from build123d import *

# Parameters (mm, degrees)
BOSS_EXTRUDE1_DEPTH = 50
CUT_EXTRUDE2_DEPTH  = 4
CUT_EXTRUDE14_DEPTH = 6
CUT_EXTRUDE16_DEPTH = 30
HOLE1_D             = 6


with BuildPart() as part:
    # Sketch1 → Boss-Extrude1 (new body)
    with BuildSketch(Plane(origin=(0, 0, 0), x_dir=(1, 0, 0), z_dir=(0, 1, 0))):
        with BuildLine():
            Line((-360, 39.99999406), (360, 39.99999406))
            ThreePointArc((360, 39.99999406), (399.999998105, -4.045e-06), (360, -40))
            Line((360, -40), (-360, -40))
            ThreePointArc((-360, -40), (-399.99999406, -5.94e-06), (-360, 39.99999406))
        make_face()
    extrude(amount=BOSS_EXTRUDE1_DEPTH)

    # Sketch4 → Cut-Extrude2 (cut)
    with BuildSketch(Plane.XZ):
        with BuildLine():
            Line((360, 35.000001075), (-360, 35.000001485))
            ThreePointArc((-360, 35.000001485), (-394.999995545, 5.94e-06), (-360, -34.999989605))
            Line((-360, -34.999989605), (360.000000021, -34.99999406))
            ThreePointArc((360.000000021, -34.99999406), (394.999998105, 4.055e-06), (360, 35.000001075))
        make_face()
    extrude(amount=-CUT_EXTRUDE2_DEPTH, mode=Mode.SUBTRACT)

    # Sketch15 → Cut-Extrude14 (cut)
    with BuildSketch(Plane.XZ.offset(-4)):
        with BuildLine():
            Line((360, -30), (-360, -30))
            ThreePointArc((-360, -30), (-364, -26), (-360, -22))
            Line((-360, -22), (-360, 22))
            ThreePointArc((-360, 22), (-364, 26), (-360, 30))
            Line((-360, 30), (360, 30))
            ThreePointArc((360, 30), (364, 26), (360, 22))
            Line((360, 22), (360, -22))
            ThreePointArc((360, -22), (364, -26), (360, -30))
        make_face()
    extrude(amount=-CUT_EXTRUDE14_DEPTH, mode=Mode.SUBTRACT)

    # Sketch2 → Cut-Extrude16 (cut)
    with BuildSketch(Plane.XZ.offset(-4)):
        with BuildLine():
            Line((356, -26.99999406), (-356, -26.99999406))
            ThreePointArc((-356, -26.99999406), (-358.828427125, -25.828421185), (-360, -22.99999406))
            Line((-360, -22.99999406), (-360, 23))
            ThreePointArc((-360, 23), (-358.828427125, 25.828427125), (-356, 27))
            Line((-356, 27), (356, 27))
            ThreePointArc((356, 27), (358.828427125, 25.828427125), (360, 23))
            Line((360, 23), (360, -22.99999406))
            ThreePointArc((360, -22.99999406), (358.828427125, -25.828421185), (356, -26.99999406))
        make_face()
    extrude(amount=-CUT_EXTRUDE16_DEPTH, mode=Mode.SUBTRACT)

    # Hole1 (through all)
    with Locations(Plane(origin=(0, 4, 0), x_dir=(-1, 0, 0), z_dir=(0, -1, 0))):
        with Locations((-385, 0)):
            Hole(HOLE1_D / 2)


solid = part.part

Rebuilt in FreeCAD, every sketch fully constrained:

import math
import FreeCAD as App
import Part
import Sketcher
Q = App.Units.Quantity

doc = App.newDocument("Part")
body = doc.addObject("PartDesign::Body", "Body")

sketch1 = doc.addObject("Sketcher::SketchObject", "Sketch")
body.addObject(sketch1)
sketch1.AttachmentSupport = (doc.XZ_Plane, [""])
sketch1.MapMode = "FlatFace"
sketch1.addGeometry([
    Part.LineSegment(App.Vector(360, -39.999994, 0), App.Vector(-360, -39.999994, 0)),
    Part.ArcOfCircle(Part.Circle(App.Vector(-359.999997, 0.000003, 0), App.Vector(0, 0, 1), 39.999997), math.radians(90.000004), math.radians(269.999996)),
    Part.LineSegment(App.Vector(-360, 40, 0), App.Vector(360, 40, 0)),
    Part.ArcOfCircle(Part.Circle(App.Vector(360.000001, 0.000003, 0), App.Vector(0, 0, 1), 39.999997), math.radians(-90.000002), math.radians(90.000002)),
], False)
sketch1.addConstraint([
    Sketcher.Constraint("Tangent", 0, 2, 1, 2),
    Sketcher.Constraint("Tangent", 1, 1, 2, 1),
    Sketcher.Constraint("Tangent", 2, 2, 3, 2),
    Sketcher.Constraint("Tangent", 3, 1, 0, 1),
    Sketcher.Constraint("Horizontal", 0),
    Sketcher.Constraint("Horizontal", 2),
    Sketcher.Constraint("Symmetric", 1, 3, 3, 3, -1, 1),
    Sketcher.Constraint("DistanceX", 0, 2, 0, 1, Q("720 mm")),
    Sketcher.Constraint("DistanceY", -1, 1, 1, 1, Q("40 mm")),
])
pad1 = doc.addObject("PartDesign::Pad", "Pad")
body.addObject(pad1)
pad1.Profile = sketch1
pad1.Length = 50
pad1.Reversed = True

sketch2 = doc.addObject("Sketcher::SketchObject", "Sketch001")
body.addObject(sketch2)
sketch2.AttachmentSupport = (doc.XZ_Plane, [""])
sketch2.MapMode = "FlatFace"
sketch2.addGeometry([
    Part.LineSegment(App.Vector(360, 35.000001, 0), App.Vector(-360, 35.000001, 0)),
    Part.ArcOfCircle(Part.Circle(App.Vector(-360, 0.000006, 0), App.Vector(0, 0, 1), 34.999996), math.radians(90), math.radians(270)),
    Part.LineSegment(App.Vector(-360, -34.99999, 0), App.Vector(360, -34.999994, 0)),
    Part.ArcOfCircle(Part.Circle(App.Vector(360.000001, 0.000004, 0), App.Vector(0, 0, 1), 34.999998), math.radians(-90.000001), math.radians(90.000001)),
], False)
sketch2.addConstraint([
    Sketcher.Constraint("Tangent", 0, 2, 1, 1),
    Sketcher.Constraint("Tangent", 1, 2, 2, 1),
    Sketcher.Constraint("Tangent", 2, 2, 3, 1),
    Sketcher.Constraint("Tangent", 3, 2, 0, 1),
    Sketcher.Constraint("Horizontal", 0),
    Sketcher.Constraint("Symmetric", 1, 3, 3, 3, -1, 1),
    Sketcher.Constraint("Vertical", 3, 3, 2, 2),
    Sketcher.Constraint("DistanceX", 0, 2, 0, 1, Q("720 mm")),
    Sketcher.Constraint("DistanceY", -1, 1, 0, 2, Q("35.000001 mm")),
])
pocket1 = doc.addObject("PartDesign::Pocket", "Pocket")
body.addObject(pocket1)
pocket1.Profile = sketch2
pocket1.Length = 4

sketch3 = doc.addObject("Sketcher::SketchObject", "Sketch002")
body.addObject(sketch3)
sketch3.AttachmentSupport = (doc.XZ_Plane, [""])
sketch3.MapMode = "FlatFace"
sketch3.AttachmentOffset = App.Placement(App.Vector(0, 0, -4), App.Rotation())
sketch3.addGeometry([
    Part.LineSegment(App.Vector(-360, -30, 0), App.Vector(360, -30, 0)),
    Part.ArcOfCircle(Part.Circle(App.Vector(360, -26, 0), App.Vector(0, 0, 1), 4), math.radians(-90), math.radians(90)),
    Part.LineSegment(App.Vector(360, -22, 0), App.Vector(360, 22, 0)),
    Part.ArcOfCircle(Part.Circle(App.Vector(360, 26, 0), App.Vector(0, 0, 1), 4), math.radians(-90), math.radians(90)),
    Part.LineSegment(App.Vector(360, 30, 0), App.Vector(-360, 30, 0)),
    Part.ArcOfCircle(Part.Circle(App.Vector(-360, 26, 0), App.Vector(0, 0, 1), 4), math.radians(90), math.radians(270)),
    Part.LineSegment(App.Vector(-360, 22, 0), App.Vector(-360, -22, 0)),
    Part.ArcOfCircle(Part.Circle(App.Vector(-360, -26, 0), App.Vector(0, 0, 1), 4), math.radians(90), math.radians(270)),
], False)
sketch3.addConstraint([
    Sketcher.Constraint("Tangent", 0, 2, 1, 1),
    Sketcher.Constraint("Coincident", 1, 2, 2, 1),
    Sketcher.Constraint("Coincident", 2, 2, 3, 1),
    Sketcher.Constraint("Tangent", 3, 2, 4, 1),
    Sketcher.Constraint("Tangent", 4, 2, 5, 1),
    Sketcher.Constraint("Coincident", 5, 2, 6, 1),
    Sketcher.Constraint("Coincident", 6, 2, 7, 1),
    Sketcher.Constraint("Tangent", 7, 2, 0, 1),
    Sketcher.Constraint("Horizontal", 0),
    Sketcher.Constraint("Vertical", 2),
    Sketcher.Constraint("Horizontal", 4),
    Sketcher.Constraint("Vertical", 6),
    Sketcher.Constraint("Equal", 1, 3),
    Sketcher.Constraint("Equal", 3, 5),
    Sketcher.Constraint("Equal", 5, 7),
    Sketcher.Constraint("Symmetric", 1, 3, 5, 3, -1, 1),
    Sketcher.Constraint("Vertical", 1, 3, 3, 3),
    Sketcher.Constraint("Vertical", 5, 3, 7, 3),
    Sketcher.Constraint("Vertical", 0, 2, 1, 2),
    Sketcher.Constraint("Vertical", 4, 2, 5, 2),
    Sketcher.Constraint("Radius", 1, Q("4 mm")),
    Sketcher.Constraint("DistanceX", 0, 1, 0, 2, Q("720 mm")),
    Sketcher.Constraint("DistanceY", 2, 1, 2, 2, Q("44 mm")),
])
pocket2 = doc.addObject("PartDesign::Pocket", "Pocket001")
body.addObject(pocket2)
pocket2.Profile = sketch3
pocket2.Length = 6

sketch4 = doc.addObject("Sketcher::SketchObject", "Sketch003")
body.addObject(sketch4)
sketch4.AttachmentSupport = (doc.XZ_Plane, [""])
sketch4.MapMode = "FlatFace"
sketch4.AttachmentOffset = App.Placement(App.Vector(0, 0, -4), App.Rotation())
sketch4.addGeometry([
    Part.LineSegment(App.Vector(-356, -26.999994, 0), App.Vector(356, -26.999994, 0)),
    Part.ArcOfCircle(Part.Circle(App.Vector(356, -22.999994, 0), App.Vector(0, 0, 1), 4), math.radians(-90), math.radians(0)),
    Part.LineSegment(App.Vector(360, -22.999994, 0), App.Vector(360, 23, 0)),
    Part.ArcOfCircle(Part.Circle(App.Vector(356, 23, 0), App.Vector(0, 0, 1), 4), math.radians(0), math.radians(90)),
    Part.LineSegment(App.Vector(356, 27, 0), App.Vector(-356, 27, 0)),
    Part.ArcOfCircle(Part.Circle(App.Vector(-356, 23, 0), App.Vector(0, 0, 1), 4), math.radians(90), math.radians(180)),
    Part.LineSegment(App.Vector(-360, 23, 0), App.Vector(-360, -22.999994, 0)),
    Part.ArcOfCircle(Part.Circle(App.Vector(-356, -22.999994, 0), App.Vector(0, 0, 1), 4), math.radians(180), math.radians(270)),
], False)
sketch4.addConstraint([
    Sketcher.Constraint("Tangent", 0, 2, 1, 1),
    Sketcher.Constraint("Tangent", 1, 2, 2, 1),
    Sketcher.Constraint("Tangent", 2, 2, 3, 1),
    Sketcher.Constraint("Tangent", 3, 2, 4, 1),
    Sketcher.Constraint("Tangent", 4, 2, 5, 1),
    Sketcher.Constraint("Tangent", 5, 2, 6, 1),
    Sketcher.Constraint("Tangent", 6, 2, 7, 1),
    Sketcher.Constraint("Tangent", 7, 2, 0, 1),
    Sketcher.Constraint("Horizontal", 0),
    Sketcher.Constraint("Vertical", 2),
    Sketcher.Constraint("Horizontal", 4),
    Sketcher.Constraint("Vertical", 6),
    Sketcher.Constraint("Equal", 1, 3),
    Sketcher.Constraint("Equal", 3, 5),
    Sketcher.Constraint("Equal", 5, 7),
    Sketcher.Constraint("Symmetric", 1, 3, 5, 3, -1, 1),
    Sketcher.Constraint("Radius", 1, Q("4 mm")),
    Sketcher.Constraint("DistanceX", 0, 1, 0, 2, Q("712 mm")),
    Sketcher.Constraint("DistanceY", -1, 1, 3, 3, Q("23 mm")),
])
pocket3 = doc.addObject("PartDesign::Pocket", "Pocket002")
body.addObject(pocket3)
pocket3.Profile = sketch4
pocket3.Length = 30

sketch5 = doc.addObject("Sketcher::SketchObject", "Sketch004")
body.addObject(sketch5)
sketch5.AttachmentSupport = (doc.XZ_Plane, [""])
sketch5.MapMode = "FlatFace"
sketch5.AttachmentOffset = App.Placement(App.Vector(0, 0, -4), App.Rotation())
sketch5.addGeometry(Part.Circle(App.Vector(385, 0, 0), App.Vector(0, 0, 1), 3), False)
sketch5.addConstraint([
    Sketcher.Constraint("PointOnObject", 0, 3, -1),
    Sketcher.Constraint("Diameter", 0, Q("6 mm")),
    Sketcher.Constraint("DistanceX", -1, 1, 0, 3, Q("385 mm")),
])
doc.recompute()
hole = doc.addObject("PartDesign::Hole", "Hole")
body.addObject(hole)
hole.Profile = sketch5
hole.ThreadType = "None"
hole.Diameter = 6
hole.DepthType = "ThroughAll"

doc.recompute()
